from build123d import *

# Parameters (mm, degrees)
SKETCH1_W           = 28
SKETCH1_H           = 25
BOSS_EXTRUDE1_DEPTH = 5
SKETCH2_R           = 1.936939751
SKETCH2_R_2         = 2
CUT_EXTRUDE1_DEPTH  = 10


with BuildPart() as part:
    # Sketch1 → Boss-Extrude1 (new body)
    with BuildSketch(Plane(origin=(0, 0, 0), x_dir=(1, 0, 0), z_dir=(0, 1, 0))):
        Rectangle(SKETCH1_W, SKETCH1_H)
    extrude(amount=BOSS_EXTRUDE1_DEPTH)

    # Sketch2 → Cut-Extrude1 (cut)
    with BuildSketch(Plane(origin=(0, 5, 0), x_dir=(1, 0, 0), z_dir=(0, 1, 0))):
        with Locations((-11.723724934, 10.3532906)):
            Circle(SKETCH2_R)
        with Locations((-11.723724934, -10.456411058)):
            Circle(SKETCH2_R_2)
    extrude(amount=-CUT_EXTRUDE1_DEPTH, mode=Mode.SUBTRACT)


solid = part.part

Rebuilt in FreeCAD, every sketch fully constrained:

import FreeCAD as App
import Part
import Sketcher

V = App.Vector
Q = App.Units.Quantity

doc = App.newDocument("Part")
body = doc.addObject("PartDesign::Body", "Body")

# Sketch on XZ plane
sketch1 = body.newObject("Sketcher::SketchObject", "Sketch")
sketch1.AttachmentSupport = (doc.getObject("XZ_Plane"), [""])
sketch1.MapMode = "FlatFace"
sketch1.addGeometry([
    Part.LineSegment(V(-14, -12.5, 0), V(-14, 12.5, 0)),
    Part.LineSegment(V(-14, 12.5, 0), V(14, 12.5, 0)),
    Part.LineSegment(V(14, 12.5, 0), V(14, -12.5, 0)),
    Part.LineSegment(V(14, -12.5, 0), V(-14, -12.5, 0)),
], False)
sketch1.addConstraint([
    Sketcher.Constraint("Coincident", 0, 2, 1, 1),
    Sketcher.Constraint("Coincident", 1, 2, 2, 1),
    Sketcher.Constraint("Coincident", 2, 2, 3, 1),
    Sketcher.Constraint("Coincident", 3, 2, 0, 1),
    Sketcher.Constraint("Vertical", 0),
    Sketcher.Constraint("Horizontal", 1),
    Sketcher.Constraint("Vertical", 2),
    Sketcher.Constraint("Horizontal", 3),
    Sketcher.Constraint("Symmetric", 0, 2, 2, 2, -1, 1),
    Sketcher.Constraint("DistanceX", 1, 1, 1, 2, Q("28 mm")),
    Sketcher.Constraint("DistanceY", 0, 1, 0, 2, Q("25 mm")),
])
pad1 = body.newObject("PartDesign::Pad", "Pad")
pad1.Profile = sketch1
pad1.Length = 5
pad1.Reversed = True

# Sketch on XZ plane
sketch2 = body.newObject("Sketcher::SketchObject", "Sketch001")
sketch2.AttachmentSupport = (doc.getObject("XZ_Plane"), [""])
sketch2.MapMode = "FlatFace"
sketch2.AttachmentOffset = App.Placement(V(0, 0, -5), App.Rotation())
sketch2.addGeometry([
    Part.Circle(V(-11.723725, -10.353291, 0), V(0, 0, 1), 1.93694),
    Part.Circle(V(-11.723725, 10.456411, 0), V(0, 0, 1), 2),
], False)
sketch2.addConstraint([
    Sketcher.Constraint("Vertical", 0, 3, 1, 3),
    Sketcher.Constraint("Diameter", 1, Q("4 mm")),
    Sketcher.Constraint("Diameter", 0, Q("3.87388 mm")),
    Sketcher.Constraint("DistanceY", 0, 3, 1, 3, Q("20.809702 mm")),
    Sketcher.Constraint("DistanceY", 0, 3, -1, 1, Q("10.353291 mm")),
    Sketcher.Constraint("DistanceX", 0, 3, -1, 1, Q("11.723725 mm")),
])
pocket1 = body.newObject("PartDesign::Pocket", "Pocket")
pocket1.Profile = sketch2
pocket1.Length = 10
pocket1.Reversed = True

doc.recompute()
